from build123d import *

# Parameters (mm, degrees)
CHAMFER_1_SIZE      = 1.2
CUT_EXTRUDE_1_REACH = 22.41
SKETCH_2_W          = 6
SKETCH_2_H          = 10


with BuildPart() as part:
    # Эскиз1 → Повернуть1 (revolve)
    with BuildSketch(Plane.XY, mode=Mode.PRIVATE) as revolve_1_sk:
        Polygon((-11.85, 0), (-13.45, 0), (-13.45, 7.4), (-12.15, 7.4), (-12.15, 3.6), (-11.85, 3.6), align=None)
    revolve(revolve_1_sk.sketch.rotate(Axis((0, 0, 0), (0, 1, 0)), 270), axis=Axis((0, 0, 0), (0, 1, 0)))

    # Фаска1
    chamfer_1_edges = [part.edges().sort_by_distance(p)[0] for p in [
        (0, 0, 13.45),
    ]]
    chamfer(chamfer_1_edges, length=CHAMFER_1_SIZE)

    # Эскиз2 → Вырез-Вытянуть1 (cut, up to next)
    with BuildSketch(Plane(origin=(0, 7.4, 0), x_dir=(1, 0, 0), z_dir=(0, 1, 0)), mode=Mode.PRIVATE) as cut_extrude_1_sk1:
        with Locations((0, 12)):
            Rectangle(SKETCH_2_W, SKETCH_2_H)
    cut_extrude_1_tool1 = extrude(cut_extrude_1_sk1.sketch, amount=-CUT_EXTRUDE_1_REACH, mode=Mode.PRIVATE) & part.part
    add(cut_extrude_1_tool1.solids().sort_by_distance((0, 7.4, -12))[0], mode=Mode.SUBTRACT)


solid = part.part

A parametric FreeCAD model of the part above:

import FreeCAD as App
import Part
import Sketcher
from FreeCAD import Vector


def edges_at(feature, points):
    """Names of the edges that pass closest to the given points."""
    edges = feature.Shape.Edges
    near = lambda p: min(range(len(edges)), key=lambda i: edges[i].distToShape(Part.Vertex(*p))[0])
    return sorted({f"Edge{near(p) + 1}" for p in points})

doc = App.newDocument("Part")
body = doc.addObject("PartDesign::Body", "Body")

sketch1 = body.newObject("Sketcher::SketchObject", "Sketch")
sketch1.AttachmentSupport = (doc.getObject("XY_Plane"), [""])
sketch1.MapMode = "FlatFace"
sketch1.addGeometry(Part.LineSegment(Vector(-13.45, 0, 0), Vector(-11.85, 0, 0)), False)
sketch1.addGeometry(Part.LineSegment(Vector(-11.85, 0, 0), Vector(-11.85, 3.6, 0)), False)
sketch1.addGeometry(Part.LineSegment(Vector(-11.85, 3.6, 0), Vector(-12.15, 3.6, 0)), False)
sketch1.addGeometry(Part.LineSegment(Vector(-12.15, 3.6, 0), Vector(-12.15, 7.4, 0)), False)
sketch1.addGeometry(Part.LineSegment(Vector(-12.15, 7.4, 0), Vector(-13.45, 7.4, 0)), False)
sketch1.addGeometry(Part.LineSegment(Vector(-13.45, 7.4, 0), Vector(-13.45, 0, 0)), False)
sketch1.addConstraint(Sketcher.Constraint("Coincident", 0, 2, 1, 1))
sketch1.addConstraint(Sketcher.Constraint("Coincident", 1, 2, 2, 1))
sketch1.addConstraint(Sketcher.Constraint("Coincident", 2, 2, 3, 1))
sketch1.addConstraint(Sketcher.Constraint("Coincident", 3, 2, 4, 1))
sketch1.addConstraint(Sketcher.Constraint("Coincident", 4, 2, 5, 1))
sketch1.addConstraint(Sketcher.Constraint("Coincident", 5, 2, 0, 1))
sketch1.addConstraint(Sketcher.Constraint("Horizontal", 0))
sketch1.addConstraint(Sketcher.Constraint("Vertical", 1))
sketch1.addConstraint(Sketcher.Constraint("Horizontal", 2))
sketch1.addConstraint(Sketcher.Constraint("Vertical", 3))
sketch1.addConstraint(Sketcher.Constraint("Horizontal", 4))
sketch1.addConstraint(Sketcher.Constraint("Vertical", 5))
sketch1.addConstraint(Sketcher.Constraint("PointOnObject", 0, 2, -1))
sketch1.addConstraint(Sketcher.Constraint("DistanceX", 0, 1, 0, 2, 1.6))
sketch1.addConstraint(Sketcher.Constraint("DistanceX", 2, 2, 2, 1, 0.3))
sketch1.addConstraint(Sketcher.Constraint("DistanceY", 1, 1, 1, 2, 3.6))
sketch1.addConstraint(Sketcher.Constraint("DistanceY", 3, 1, 3, 2, 3.8))
sketch1.addConstraint(Sketcher.Constraint("DistanceX", 0, 2, -1, 1, 11.85))
revolution = body.newObject("PartDesign::Revolution", "Revolution")
revolution.Profile = sketch1
revolution.ReferenceAxis = (sketch1, ["V_Axis"])
revolution.Angle = 360
doc.recompute()

chamfer = body.newObject("PartDesign::Chamfer", "Chamfer")
chamfer.Base = (revolution, edges_at(revolution, [(0, 0, 13.45)]))
chamfer.Size = 1.2

sketch2 = body.newObject("Sketcher::SketchObject", "Sketch001")
sketch2.AttachmentSupport = (doc.getObject("XZ_Plane"), [""])
sketch2.MapMode = "FlatFace"
sketch2.AttachmentOffset = App.Placement(Vector(0, 0, -7.4), App.Rotation())
sketch2.addGeometry(Part.LineSegment(Vector(-3, -17, 0), Vector(-3, -7, 0)), False)
sketch2.addGeometry(Part.LineSegment(Vector(-3, -7, 0), Vector(3, -7, 0)), False)
sketch2.addGeometry(Part.LineSegment(Vector(3, -7, 0), Vector(3, -17, 0)), False)
sketch2.addGeometry(Part.LineSegment(Vector(3, -17, 0), Vector(-3, -17, 0)), False)
sketch2.addConstraint(Sketcher.Constraint("Coincident", 0, 2, 1, 1))
sketch2.addConstraint(Sketcher.Constraint("Coincident", 1, 2, 2, 1))
sketch2.addConstraint(Sketcher.Constraint("Coincident", 2, 2, 3, 1))
sketch2.addConstraint(Sketcher.Constraint("Coincident", 3, 2, 0, 1))
sketch2.addConstraint(Sketcher.Constraint("Vertical", 0))
sketch2.addConstraint(Sketcher.Constraint("Horizontal", 1))
sketch2.addConstraint(Sketcher.Constraint("Vertical", 2))
sketch2.addConstraint(Sketcher.Constraint("Horizontal", 3))
sketch2.addConstraint(Sketcher.Constraint("DistanceX", 1, 1, 1, 2, 6.0))
sketch2.addConstraint(Sketcher.Constraint("DistanceY", 0, 1, 0, 2, 10.0))
sketch2.addConstraint(Sketcher.Constraint("DistanceX", 0, 2, -1, 1, 3.0))
sketch2.addConstraint(Sketcher.Constraint("DistanceY", 0, 2, -1, 1, 7.0))
pocket1 = body.newObject("PartDesign::Pocket", "Pocket")
pocket1.Profile = sketch2
pocket1.Length = 7.4
pocket1.Reversed = True

doc.recompute()
